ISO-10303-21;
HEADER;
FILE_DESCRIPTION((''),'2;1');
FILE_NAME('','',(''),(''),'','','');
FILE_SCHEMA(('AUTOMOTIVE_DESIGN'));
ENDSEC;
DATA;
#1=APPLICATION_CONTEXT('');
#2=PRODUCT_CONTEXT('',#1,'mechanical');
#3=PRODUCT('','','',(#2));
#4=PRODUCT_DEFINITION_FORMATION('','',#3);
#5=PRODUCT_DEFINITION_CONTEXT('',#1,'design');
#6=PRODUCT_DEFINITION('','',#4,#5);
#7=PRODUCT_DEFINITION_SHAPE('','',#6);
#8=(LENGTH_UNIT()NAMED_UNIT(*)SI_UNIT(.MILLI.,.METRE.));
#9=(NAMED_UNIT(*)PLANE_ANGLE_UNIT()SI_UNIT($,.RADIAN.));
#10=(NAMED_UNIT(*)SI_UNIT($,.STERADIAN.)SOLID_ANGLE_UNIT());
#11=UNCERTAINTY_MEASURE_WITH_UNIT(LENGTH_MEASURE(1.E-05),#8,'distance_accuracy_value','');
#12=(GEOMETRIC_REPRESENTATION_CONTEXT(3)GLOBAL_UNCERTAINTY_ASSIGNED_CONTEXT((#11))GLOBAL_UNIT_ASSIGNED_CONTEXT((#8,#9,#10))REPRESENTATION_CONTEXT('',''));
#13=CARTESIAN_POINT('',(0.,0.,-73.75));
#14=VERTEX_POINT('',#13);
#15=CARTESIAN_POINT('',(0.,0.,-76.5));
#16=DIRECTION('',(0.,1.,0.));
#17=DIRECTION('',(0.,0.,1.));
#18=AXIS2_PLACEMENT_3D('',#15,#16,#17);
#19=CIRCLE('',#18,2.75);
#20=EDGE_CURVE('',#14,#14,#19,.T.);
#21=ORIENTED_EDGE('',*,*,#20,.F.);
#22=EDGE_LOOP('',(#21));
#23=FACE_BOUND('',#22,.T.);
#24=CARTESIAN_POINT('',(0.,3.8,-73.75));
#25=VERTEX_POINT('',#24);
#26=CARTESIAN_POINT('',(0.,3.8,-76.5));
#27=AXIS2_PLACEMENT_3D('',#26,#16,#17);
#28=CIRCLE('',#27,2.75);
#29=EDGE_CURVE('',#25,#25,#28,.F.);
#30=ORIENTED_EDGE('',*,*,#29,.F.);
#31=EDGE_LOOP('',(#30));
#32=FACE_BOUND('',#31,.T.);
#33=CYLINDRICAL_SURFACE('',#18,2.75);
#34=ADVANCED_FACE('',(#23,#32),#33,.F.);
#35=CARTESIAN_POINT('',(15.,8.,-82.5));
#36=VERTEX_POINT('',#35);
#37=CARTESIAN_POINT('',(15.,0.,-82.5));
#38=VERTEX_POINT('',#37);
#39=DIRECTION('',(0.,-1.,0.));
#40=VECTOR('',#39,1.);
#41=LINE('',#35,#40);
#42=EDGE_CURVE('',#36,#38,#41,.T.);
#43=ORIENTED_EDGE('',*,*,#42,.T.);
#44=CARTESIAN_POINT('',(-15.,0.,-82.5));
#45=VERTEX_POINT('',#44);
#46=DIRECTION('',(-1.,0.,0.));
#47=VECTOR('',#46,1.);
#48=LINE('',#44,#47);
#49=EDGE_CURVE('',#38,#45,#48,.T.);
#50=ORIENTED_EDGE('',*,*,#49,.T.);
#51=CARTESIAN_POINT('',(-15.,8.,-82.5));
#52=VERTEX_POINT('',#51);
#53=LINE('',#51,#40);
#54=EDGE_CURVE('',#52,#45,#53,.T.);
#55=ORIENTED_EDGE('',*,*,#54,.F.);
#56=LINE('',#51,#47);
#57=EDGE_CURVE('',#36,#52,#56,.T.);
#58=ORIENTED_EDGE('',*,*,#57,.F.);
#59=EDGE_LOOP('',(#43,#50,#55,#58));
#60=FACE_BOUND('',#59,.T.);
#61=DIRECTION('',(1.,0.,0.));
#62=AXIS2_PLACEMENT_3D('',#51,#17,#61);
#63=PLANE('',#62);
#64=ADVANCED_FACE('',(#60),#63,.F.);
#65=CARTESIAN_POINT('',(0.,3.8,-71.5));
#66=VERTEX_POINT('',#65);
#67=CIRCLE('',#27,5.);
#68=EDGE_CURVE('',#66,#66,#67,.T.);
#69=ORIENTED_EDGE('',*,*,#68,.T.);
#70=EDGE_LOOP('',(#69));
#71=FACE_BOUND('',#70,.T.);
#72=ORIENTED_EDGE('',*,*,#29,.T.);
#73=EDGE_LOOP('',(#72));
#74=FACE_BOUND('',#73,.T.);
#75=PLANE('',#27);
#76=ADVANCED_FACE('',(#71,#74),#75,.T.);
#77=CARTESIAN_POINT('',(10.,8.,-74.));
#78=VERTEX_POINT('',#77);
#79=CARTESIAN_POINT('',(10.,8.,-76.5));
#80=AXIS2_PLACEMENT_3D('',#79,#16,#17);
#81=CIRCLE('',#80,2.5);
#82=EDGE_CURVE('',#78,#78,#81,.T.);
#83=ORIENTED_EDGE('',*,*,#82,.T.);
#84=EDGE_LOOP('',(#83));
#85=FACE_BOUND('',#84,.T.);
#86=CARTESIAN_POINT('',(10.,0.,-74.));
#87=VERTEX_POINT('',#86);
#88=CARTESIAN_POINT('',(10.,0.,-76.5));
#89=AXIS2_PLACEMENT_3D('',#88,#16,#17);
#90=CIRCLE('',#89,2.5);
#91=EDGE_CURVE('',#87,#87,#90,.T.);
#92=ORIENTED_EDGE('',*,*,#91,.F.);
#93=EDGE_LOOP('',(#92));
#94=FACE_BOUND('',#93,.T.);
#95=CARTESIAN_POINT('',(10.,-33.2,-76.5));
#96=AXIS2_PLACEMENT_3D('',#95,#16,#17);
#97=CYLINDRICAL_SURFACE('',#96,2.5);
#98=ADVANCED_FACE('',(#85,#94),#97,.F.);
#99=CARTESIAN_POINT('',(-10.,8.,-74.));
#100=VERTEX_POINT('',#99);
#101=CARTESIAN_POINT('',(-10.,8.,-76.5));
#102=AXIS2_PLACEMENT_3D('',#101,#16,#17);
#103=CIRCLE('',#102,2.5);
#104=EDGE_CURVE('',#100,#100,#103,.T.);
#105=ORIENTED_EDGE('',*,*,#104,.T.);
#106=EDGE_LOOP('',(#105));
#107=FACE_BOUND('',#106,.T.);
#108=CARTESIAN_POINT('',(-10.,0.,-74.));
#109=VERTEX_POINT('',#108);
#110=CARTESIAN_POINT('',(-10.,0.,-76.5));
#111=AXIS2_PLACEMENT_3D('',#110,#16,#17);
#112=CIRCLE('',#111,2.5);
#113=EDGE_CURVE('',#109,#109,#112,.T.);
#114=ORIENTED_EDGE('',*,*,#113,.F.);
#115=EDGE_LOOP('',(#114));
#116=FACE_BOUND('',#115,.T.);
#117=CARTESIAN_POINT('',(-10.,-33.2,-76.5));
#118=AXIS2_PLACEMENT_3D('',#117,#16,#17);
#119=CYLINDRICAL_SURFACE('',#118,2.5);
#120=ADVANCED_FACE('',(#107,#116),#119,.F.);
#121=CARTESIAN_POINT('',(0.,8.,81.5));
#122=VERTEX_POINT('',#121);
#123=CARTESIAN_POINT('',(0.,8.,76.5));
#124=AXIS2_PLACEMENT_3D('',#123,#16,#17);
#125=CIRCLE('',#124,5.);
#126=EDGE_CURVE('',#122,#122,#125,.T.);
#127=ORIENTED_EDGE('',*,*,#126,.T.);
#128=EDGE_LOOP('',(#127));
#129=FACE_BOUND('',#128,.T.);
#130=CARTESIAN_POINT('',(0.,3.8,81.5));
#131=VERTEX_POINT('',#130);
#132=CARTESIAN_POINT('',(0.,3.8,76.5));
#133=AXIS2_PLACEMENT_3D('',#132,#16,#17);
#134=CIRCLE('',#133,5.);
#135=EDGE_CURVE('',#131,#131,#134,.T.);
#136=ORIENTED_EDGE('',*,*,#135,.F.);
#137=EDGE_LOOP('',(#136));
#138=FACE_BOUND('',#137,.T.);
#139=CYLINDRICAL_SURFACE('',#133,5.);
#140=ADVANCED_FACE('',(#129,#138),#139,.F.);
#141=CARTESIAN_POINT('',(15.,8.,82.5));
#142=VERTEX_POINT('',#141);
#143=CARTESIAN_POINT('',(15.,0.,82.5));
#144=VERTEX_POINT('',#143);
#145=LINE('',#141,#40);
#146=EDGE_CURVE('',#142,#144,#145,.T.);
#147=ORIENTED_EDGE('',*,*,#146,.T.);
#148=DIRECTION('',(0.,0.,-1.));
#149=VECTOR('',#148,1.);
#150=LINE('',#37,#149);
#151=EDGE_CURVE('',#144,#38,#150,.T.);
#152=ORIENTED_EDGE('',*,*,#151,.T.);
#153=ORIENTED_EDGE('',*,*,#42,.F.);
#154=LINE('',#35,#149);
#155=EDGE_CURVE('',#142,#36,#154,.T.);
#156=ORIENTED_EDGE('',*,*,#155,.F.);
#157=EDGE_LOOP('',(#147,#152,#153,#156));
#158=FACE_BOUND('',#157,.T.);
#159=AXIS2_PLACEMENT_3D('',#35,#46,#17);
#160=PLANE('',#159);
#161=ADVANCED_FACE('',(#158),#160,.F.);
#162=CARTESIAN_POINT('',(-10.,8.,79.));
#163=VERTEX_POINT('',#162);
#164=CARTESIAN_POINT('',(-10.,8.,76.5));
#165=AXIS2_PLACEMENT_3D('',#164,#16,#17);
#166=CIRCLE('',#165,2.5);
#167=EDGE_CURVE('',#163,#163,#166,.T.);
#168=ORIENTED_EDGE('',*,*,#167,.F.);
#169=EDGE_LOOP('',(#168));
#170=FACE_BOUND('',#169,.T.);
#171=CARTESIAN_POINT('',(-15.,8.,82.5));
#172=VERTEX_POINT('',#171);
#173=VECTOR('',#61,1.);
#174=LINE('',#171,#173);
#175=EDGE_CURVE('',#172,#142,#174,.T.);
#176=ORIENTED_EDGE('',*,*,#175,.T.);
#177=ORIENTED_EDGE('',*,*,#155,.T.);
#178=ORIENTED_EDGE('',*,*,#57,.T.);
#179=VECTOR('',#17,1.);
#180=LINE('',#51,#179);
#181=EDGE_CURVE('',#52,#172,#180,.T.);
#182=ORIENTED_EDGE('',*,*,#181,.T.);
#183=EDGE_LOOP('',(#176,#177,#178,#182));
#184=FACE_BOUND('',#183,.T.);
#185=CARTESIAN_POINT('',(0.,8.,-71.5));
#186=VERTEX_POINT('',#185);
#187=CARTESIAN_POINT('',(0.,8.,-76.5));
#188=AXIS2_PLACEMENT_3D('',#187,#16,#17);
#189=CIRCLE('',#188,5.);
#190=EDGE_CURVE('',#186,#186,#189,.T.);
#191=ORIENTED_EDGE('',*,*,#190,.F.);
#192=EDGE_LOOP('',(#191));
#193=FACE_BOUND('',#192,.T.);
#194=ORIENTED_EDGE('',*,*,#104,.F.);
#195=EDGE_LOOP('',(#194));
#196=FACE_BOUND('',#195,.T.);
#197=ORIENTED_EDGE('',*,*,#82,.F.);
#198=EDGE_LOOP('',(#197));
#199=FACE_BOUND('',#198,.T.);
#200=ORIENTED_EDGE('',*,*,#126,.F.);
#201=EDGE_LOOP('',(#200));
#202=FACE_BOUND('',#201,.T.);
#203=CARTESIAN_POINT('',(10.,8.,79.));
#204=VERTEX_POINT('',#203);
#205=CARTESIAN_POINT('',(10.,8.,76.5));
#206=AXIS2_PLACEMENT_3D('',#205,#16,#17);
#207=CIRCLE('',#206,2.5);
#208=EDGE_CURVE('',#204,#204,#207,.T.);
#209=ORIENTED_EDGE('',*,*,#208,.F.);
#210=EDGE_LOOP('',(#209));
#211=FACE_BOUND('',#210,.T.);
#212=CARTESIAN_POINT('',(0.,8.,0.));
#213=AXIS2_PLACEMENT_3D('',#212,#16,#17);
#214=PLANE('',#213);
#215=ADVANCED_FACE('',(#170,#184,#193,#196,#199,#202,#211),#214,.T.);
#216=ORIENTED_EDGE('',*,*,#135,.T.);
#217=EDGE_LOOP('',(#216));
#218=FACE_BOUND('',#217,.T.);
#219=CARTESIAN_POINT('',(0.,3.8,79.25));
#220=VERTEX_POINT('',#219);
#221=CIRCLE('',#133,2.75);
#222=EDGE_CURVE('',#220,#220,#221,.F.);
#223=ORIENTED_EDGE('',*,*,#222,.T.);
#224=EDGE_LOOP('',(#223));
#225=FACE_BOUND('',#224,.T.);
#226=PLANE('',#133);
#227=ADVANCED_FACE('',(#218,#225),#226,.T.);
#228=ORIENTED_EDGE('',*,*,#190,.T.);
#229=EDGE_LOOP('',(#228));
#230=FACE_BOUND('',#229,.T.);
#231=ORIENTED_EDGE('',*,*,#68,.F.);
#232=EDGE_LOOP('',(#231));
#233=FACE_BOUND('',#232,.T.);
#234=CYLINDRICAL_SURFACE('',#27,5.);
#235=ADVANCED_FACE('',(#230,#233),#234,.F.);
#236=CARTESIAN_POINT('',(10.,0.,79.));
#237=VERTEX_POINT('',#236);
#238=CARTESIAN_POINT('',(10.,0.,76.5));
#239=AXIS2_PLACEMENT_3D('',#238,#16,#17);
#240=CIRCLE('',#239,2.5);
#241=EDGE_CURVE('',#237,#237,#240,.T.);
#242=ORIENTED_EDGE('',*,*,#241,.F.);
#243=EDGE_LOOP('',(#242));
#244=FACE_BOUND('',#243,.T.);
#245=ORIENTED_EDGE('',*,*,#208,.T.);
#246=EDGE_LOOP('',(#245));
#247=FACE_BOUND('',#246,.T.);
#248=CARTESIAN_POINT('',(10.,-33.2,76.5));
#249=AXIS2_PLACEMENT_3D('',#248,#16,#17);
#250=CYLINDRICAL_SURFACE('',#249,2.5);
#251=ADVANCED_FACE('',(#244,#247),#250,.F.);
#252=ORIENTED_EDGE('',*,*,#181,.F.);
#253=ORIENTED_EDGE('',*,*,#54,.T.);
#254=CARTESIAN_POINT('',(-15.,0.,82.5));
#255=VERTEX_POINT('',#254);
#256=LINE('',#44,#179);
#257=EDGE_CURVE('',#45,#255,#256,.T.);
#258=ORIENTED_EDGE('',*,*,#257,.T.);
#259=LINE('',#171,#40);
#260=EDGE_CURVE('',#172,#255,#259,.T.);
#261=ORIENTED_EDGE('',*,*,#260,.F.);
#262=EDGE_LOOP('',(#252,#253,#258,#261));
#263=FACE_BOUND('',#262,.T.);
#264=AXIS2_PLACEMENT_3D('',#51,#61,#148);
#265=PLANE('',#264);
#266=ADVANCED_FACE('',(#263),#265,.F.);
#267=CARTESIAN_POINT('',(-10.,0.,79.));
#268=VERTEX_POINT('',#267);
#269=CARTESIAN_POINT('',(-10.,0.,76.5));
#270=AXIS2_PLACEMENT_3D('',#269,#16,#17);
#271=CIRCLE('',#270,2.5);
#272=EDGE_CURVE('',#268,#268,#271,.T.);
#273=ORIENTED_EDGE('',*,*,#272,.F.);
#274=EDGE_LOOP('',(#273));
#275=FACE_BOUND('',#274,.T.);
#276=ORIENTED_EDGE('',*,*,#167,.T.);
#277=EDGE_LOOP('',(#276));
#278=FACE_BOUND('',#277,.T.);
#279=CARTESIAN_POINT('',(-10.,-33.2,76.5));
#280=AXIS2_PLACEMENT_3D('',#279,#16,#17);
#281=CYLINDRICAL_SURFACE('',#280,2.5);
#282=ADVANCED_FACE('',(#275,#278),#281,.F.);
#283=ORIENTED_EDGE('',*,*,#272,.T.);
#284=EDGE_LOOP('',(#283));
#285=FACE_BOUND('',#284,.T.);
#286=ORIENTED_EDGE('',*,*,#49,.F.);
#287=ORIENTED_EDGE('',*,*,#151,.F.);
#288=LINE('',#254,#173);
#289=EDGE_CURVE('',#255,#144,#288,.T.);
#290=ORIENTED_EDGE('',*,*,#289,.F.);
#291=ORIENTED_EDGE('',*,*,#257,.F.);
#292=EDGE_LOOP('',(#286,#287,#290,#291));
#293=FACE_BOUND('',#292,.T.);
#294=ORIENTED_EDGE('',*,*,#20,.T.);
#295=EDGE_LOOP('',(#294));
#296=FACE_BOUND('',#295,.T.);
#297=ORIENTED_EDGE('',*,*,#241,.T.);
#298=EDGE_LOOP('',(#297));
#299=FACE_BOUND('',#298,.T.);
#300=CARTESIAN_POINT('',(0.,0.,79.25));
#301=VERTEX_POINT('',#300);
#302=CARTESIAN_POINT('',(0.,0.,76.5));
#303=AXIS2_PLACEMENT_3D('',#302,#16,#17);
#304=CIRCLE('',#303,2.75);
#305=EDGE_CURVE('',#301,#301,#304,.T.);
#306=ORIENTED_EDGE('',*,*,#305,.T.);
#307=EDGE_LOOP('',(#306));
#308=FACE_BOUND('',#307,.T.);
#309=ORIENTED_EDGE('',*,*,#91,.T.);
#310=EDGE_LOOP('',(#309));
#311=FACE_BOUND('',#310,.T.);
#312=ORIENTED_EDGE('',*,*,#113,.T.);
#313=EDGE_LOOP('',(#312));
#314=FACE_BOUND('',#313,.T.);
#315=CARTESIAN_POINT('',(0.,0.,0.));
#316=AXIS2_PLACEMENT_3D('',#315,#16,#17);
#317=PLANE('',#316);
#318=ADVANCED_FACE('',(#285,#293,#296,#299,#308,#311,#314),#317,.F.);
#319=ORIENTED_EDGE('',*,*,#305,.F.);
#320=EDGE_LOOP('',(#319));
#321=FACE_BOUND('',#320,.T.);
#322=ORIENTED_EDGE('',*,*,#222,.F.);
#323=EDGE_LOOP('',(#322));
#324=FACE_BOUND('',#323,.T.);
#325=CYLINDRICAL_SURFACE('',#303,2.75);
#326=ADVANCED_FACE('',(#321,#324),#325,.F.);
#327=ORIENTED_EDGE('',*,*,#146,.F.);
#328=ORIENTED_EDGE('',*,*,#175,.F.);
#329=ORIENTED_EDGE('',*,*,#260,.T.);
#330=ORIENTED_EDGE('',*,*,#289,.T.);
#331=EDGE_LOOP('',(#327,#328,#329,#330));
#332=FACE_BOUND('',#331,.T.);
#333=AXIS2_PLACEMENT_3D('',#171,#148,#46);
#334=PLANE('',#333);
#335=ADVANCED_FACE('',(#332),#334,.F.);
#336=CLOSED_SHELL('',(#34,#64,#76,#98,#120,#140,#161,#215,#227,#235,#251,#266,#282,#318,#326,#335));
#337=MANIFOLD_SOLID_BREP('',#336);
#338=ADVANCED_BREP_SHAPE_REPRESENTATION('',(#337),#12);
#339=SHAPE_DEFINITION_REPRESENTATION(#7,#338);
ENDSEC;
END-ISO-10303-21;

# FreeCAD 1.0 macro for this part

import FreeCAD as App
import Part
import Sketcher

V = App.Vector

doc = App.newDocument("Part")
params = doc.addObject("Spreadsheet::Sheet", "Params")
for row, (alias, value) in enumerate([
    ("sketch1_width", "30 mm"),
    ("sketch1_height", "165 mm"),
    ("pad1_length", "8 mm"),
    ("sketch2_diameter", "5.5 mm"),
    ("pocket1_length", "8 mm"),
    ("sketch3_diameter", "10 mm"),
    ("pocket2_length", "4.2 mm"),
    ("sketch4_diameter", "5 mm"),
    ("pocket3_length", "41.2 mm"),
], start=1):
    params.set(f"A{row}", alias)
    params.set(f"B{row}", "=" + value)
    params.setAlias(f"B{row}", alias)

body = doc.addObject("PartDesign::Body", "Body")

sketch1 = body.newObject("Sketcher::SketchObject", "Sketch")
sketch1.AttachmentSupport = (doc.getObject("XZ_Plane"), [""])
sketch1.MapMode = "FlatFace"
sketch1.addGeometry([
    Part.LineSegment(V(-15, -82.5, 0), V(-15, 82.5, 0)),
    Part.LineSegment(V(-15, 82.5, 0), V(15, 82.5, 0)),
    Part.LineSegment(V(15, 82.5, 0), V(15, -82.5, 0)),
    Part.LineSegment(V(15, -82.5, 0), V(-15, -82.5, 0)),
], False)
sketch1.addConstraint([
    Sketcher.Constraint("Coincident", 0, 2, 1, 1),
    Sketcher.Constraint("Coincident", 1, 2, 2, 1),
    Sketcher.Constraint("Coincident", 2, 2, 3, 1),
    Sketcher.Constraint("Coincident", 3, 2, 0, 1),
    Sketcher.Constraint("Vertical", 0),
    Sketcher.Constraint("Horizontal", 1),
    Sketcher.Constraint("Vertical", 2),
    Sketcher.Constraint("Horizontal", 3),
    Sketcher.Constraint("Symmetric", 0, 2, 2, 2, -1, 1),
    Sketcher.Constraint("DistanceX", 1, 1, 1, 2, 30.0),
    Sketcher.Constraint("DistanceY", 0, 1, 0, 2, 165.0),
])
sketch1.setExpression("Constraints[9]", "Params.sketch1_width")
sketch1.setExpression("Constraints[10]", "Params.sketch1_height")
pad1 = body.newObject("PartDesign::Pad", "Pad")
pad1.Profile = sketch1
pad1.setExpression("Length", "Params.pad1_length")
pad1.Reversed = True

sketch2 = body.newObject("Sketcher::SketchObject", "Sketch001")
sketch2.AttachmentSupport = (doc.getObject("XZ_Plane"), [""])
sketch2.MapMode = "FlatFace"
sketch2.AttachmentOffset = App.Placement(V(0, 0, -8), App.Rotation())
sketch2.addGeometry([
    Part.Circle(V(0, 76.5, 0), V(0, 0, 1), 2.75),
    Part.Circle(V(0, -76.5, 0), V(0, 0, 1), 2.75),
], False)
sketch2.addConstraint([
    Sketcher.Constraint("Equal", 0, 1),
    Sketcher.Constraint("Symmetric", 0, 3, 1, 3, -1, 1),
    Sketcher.Constraint("PointOnObject", 0, 3, -2),
    Sketcher.Constraint("Diameter", 0, 5.5),
    Sketcher.Constraint("DistanceY", 1, 3, 0, 3, 153.0),
])
sketch2.setExpression("Constraints[3]", "Params.sketch2_diameter")
pocket1 = body.newObject("PartDesign::Pocket", "Pocket")
pocket1.Profile = sketch2
pocket1.setExpression("Length", "Params.pocket1_length")
pocket1.Reversed = True

sketch3 = body.newObject("Sketcher::SketchObject", "Sketch002")
sketch3.AttachmentSupport = (doc.getObject("XZ_Plane"), [""])
sketch3.MapMode = "FlatFace"
sketch3.AttachmentOffset = App.Placement(V(0, 0, -8), App.Rotation())
sketch3.addGeometry([
    Part.Circle(V(0, -76.5, 0), V(0, 0, 1), 5),
    Part.Circle(V(0, 76.5, 0), V(0, 0, 1), 5),
], False)
sketch3.addConstraint([
    Sketcher.Constraint("Equal", 0, 1),
    Sketcher.Constraint("Symmetric", 0, 3, 1, 3, -1, 1),
    Sketcher.Constraint("PointOnObject", 0, 3, -2),
    Sketcher.Constraint("Diameter", 0, 10.0),
    Sketcher.Constraint("DistanceY", 0, 3, 1, 3, 153.0),
])
sketch3.setExpression("Constraints[3]", "Params.sketch3_diameter")
pocket2 = body.newObject("PartDesign::Pocket", "Pocket001")
pocket2.Profile = sketch3
pocket2.setExpression("Length", "Params.pocket2_length")
pocket2.Reversed = True

sketch4 = body.newObject("Sketcher::SketchObject", "Sketch003")
sketch4.AttachmentSupport = (doc.getObject("XZ_Plane"), [""])
sketch4.MapMode = "FlatFace"
sketch4.AttachmentOffset = App.Placement(V(0, 0, -8), App.Rotation())
sketch4.addGeometry([
    Part.Circle(V(-10, -76.5, 0), V(0, 0, 1), 2.5),
    Part.Circle(V(10, -76.5, 0), V(0, 0, 1), 2.5),
    Part.Circle(V(-10, 76.5, 0), V(0, 0, 1), 2.5),
    Part.Circle(V(10, 76.5, 0), V(0, 0, 1), 2.5),
], False)
sketch4.addConstraint([
    Sketcher.Constraint("Equal", 0, 1),
    Sketcher.Constraint("Equal", 1, 2),
    Sketcher.Constraint("Equal", 2, 3),
    Sketcher.Constraint("Symmetric", 1, 3, 2, 3, -1, 1),
    Sketcher.Constraint("Symmetric", 0, 3, 3, 3, -1, 1),
    Sketcher.Constraint("Symmetric", 0, 3, 1, 3, -2),
    Sketcher.Constraint("Diameter", 0, 5.0),
    Sketcher.Constraint("DistanceX", 0, 3, -1, 1, 10.0),
    Sketcher.Constraint("DistanceY", 0, 3, 2, 3, 153.0),
])
sketch4.setExpression("Constraints[6]", "Params.sketch4_diameter")
pocket3 = body.newObject("PartDesign::Pocket", "Pocket002")
pocket3.Profile = sketch4
pocket3.setExpression("Length", "Params.pocket3_length")
pocket3.Reversed = True

doc.recompute()
